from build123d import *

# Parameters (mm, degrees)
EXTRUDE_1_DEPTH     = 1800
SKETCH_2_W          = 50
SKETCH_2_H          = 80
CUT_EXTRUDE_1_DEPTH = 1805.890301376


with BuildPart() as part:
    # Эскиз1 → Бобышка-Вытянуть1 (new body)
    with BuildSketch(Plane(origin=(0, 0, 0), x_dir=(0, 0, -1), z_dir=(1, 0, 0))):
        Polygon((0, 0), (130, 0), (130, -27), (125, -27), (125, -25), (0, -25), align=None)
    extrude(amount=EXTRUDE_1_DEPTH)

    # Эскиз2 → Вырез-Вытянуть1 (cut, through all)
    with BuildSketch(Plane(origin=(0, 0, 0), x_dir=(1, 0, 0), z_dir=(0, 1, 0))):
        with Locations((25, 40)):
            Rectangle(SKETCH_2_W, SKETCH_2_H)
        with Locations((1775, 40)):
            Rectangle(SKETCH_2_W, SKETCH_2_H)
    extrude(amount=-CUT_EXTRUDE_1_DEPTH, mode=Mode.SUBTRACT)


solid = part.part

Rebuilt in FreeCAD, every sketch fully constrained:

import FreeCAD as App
import Part
import Sketcher

V = App.Vector


def add_polygon(sketch, points):
    """Adds a closed chain of lines whose ends are joined by coincident constraints."""
    first, n = sketch.GeometryCount, len(points)
    for a, b in zip(points, points[1:] + points[:1]):
        sketch.addGeometry(Part.LineSegment(App.Vector(*a, 0), App.Vector(*b, 0)), False)
    for i in range(n):
        sketch.addConstraint(Sketcher.Constraint("Coincident", first + i, 2, first + (i + 1) % n, 1))

doc = App.newDocument("Part")
params = doc.addObject("Spreadsheet::Sheet", "Params")
for row, (alias, value) in enumerate([
    ("sketch1_width", "25 mm"),
    ("sketch1_width2", "2 mm"),
    ("sketch1_height", "130 mm"),
    ("sketch1_height2", "125 mm"),
    ("pad1_length", "1800 mm"),
    ("sketch2_width", "50 mm"),
    ("sketch2_height", "80 mm"),
], start=1):
    params.set(f"A{row}", alias)
    params.set(f"B{row}", "=" + value)
    params.setAlias(f"B{row}", alias)

body = doc.addObject("PartDesign::Body", "Body")

sketch1 = doc.addObject("Sketcher::SketchObject", "Sketch")
body.addObject(sketch1)
sketch1.AttachmentSupport = (doc.YZ_Plane, [""])
sketch1.MapMode = "FlatFace"
add_polygon(sketch1, [(0, -130), (0, 0), (-25, 0), (-25, -125), (-27, -125), (-27, -130)])
sketch1.addConstraint(Sketcher.Constraint("Vertical", 0))
sketch1.addConstraint(Sketcher.Constraint("Horizontal", 1))
sketch1.addConstraint(Sketcher.Constraint("Vertical", 2))
sketch1.addConstraint(Sketcher.Constraint("Horizontal", 3))
sketch1.addConstraint(Sketcher.Constraint("Vertical", 4))
sketch1.addConstraint(Sketcher.Constraint("Horizontal", 5))
sketch1.addConstraint(Sketcher.Constraint("Coincident", 0, 2, -1, 1))
sketch1.addConstraint(Sketcher.Constraint("DistanceX", 1, 2, 1, 1, 25.0))
sketch1.addConstraint(Sketcher.Constraint("DistanceX", 3, 2, 3, 1, 2.0))
sketch1.addConstraint(Sketcher.Constraint("DistanceY", 0, 1, 0, 2, 130.0))
sketch1.addConstraint(Sketcher.Constraint("DistanceY", 2, 2, 2, 1, 125.0))
sketch1.setExpression("Constraints[13]", "Params.sketch1_width")
sketch1.setExpression("Constraints[14]", "Params.sketch1_width2")
sketch1.setExpression("Constraints[15]", "Params.sketch1_height")
sketch1.setExpression("Constraints[16]", "Params.sketch1_height2")
pad1 = doc.addObject("PartDesign::Pad", "Pad")
body.addObject(pad1)
pad1.Profile = sketch1
pad1.setExpression("Length", "Params.pad1_length")

sketch2 = doc.addObject("Sketcher::SketchObject", "Sketch001")
body.addObject(sketch2)
sketch2.AttachmentSupport = (doc.XZ_Plane, [""])
sketch2.MapMode = "FlatFace"
add_polygon(sketch2, [(0, -80), (0, 0), (50, 0), (50, -80)])
add_polygon(sketch2, [(1750, -80), (1750, 0), (1800, 0), (1800, -80)])
sketch2.addConstraint(Sketcher.Constraint("Vertical", 0))
sketch2.addConstraint(Sketcher.Constraint("Horizontal", 1))
sketch2.addConstraint(Sketcher.Constraint("Vertical", 2))
sketch2.addConstraint(Sketcher.Constraint("Horizontal", 3))
sketch2.addConstraint(Sketcher.Constraint("Vertical", 4))
sketch2.addConstraint(Sketcher.Constraint("Horizontal", 5))
sketch2.addConstraint(Sketcher.Constraint("Vertical", 6))
sketch2.addConstraint(Sketcher.Constraint("Horizontal", 7))
sketch2.addConstraint(Sketcher.Constraint("Coincident", 0, 2, -1, 1))
sketch2.addConstraint(Sketcher.Constraint("PointOnObject", 4, 2, -1))
sketch2.addConstraint(Sketcher.Constraint("Horizontal", 3, 2, 6, 2))
sketch2.addConstraint(Sketcher.Constraint("Equal", 3, 5))
sketch2.addConstraint(Sketcher.Constraint("DistanceX", 1, 1, 1, 2, 50.0))
sketch2.addConstraint(Sketcher.Constraint("DistanceY", 0, 1, 0, 2, 80.0))
sketch2.addConstraint(Sketcher.Constraint("DistanceX", -1, 1, 4, 2, 1750.0))
sketch2.setExpression("Constraints[20]", "Params.sketch2_width")
sketch2.setExpression("Constraints[21]", "Params.sketch2_height")
pocket1 = doc.addObject("PartDesign::Pocket", "Pocket")
body.addObject(pocket1)
pocket1.Profile = sketch2
pocket1.Type = "ThroughAll"
pocket1.Reversed = True

doc.recompute()
